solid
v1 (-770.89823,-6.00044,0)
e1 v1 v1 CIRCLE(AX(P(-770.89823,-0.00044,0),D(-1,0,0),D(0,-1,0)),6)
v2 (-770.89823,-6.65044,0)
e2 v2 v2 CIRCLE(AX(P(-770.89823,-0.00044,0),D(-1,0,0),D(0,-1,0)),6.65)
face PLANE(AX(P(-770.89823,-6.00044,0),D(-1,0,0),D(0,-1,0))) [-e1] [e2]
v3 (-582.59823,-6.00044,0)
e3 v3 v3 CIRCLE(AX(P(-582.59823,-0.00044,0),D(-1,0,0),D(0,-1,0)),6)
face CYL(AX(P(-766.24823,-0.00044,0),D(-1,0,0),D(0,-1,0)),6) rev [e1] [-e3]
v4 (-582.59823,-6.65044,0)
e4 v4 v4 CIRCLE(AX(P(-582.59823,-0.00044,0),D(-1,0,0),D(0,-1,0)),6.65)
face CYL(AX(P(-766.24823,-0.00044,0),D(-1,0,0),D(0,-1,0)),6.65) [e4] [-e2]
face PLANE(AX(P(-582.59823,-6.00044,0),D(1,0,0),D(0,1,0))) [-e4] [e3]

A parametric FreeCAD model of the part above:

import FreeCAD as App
import Part
import Sketcher

V = App.Vector
Q = App.Units.Quantity


def add_polygon(sketch, points):
    """Adds a closed chain of lines whose ends are joined by coincident constraints."""
    first, n = sketch.GeometryCount, len(points)
    for a, b in zip(points, points[1:] + points[:1]):
        sketch.addGeometry(Part.LineSegment(App.Vector(*a, 0), App.Vector(*b, 0)), False)
    for i in range(n):
        sketch.addConstraint(Sketcher.Constraint("Coincident", first + i, 2, first + (i + 1) % n, 1))

doc = App.newDocument("Part")
body = doc.addObject("PartDesign::Body", "Body")

# Sketch on XY plane
sketch1 = body.newObject("Sketcher::SketchObject", "Sketch")
sketch1.AttachmentSupport = (doc.getObject("XY_Plane"), [""])
sketch1.MapMode = "FlatFace"
add_polygon(sketch1, [(-770.89823, -6.00044), (-770.89823, -6.65044), (-582.59823, -6.65044), (-582.59823, -6.00044)])  # lines 0-3
sketch1.addGeometry(Part.LineSegment(V(-770.89823, -0.00044, 0), V(-582.59823, -0.00044, 0)), True)  # axis
sketch1.addConstraint(Sketcher.Constraint("Vertical", 0))
sketch1.addConstraint(Sketcher.Constraint("Horizontal", 1))
sketch1.addConstraint(Sketcher.Constraint("Vertical", 2))
sketch1.addConstraint(Sketcher.Constraint("Horizontal", 3))
sketch1.addConstraint(Sketcher.Constraint("Horizontal", 4))
sketch1.addConstraint(Sketcher.Constraint("Vertical", 3, 2, 4, 1))
sketch1.addConstraint(Sketcher.Constraint("Vertical", 2, 2, 4, 2))
sketch1.addConstraint(Sketcher.Constraint("DistanceX", 1, 1, 1, 2, Q("188.3 mm")))
sketch1.addConstraint(Sketcher.Constraint("DistanceY", 3, 2, 4, 1, Q("6 mm")))
sketch1.addConstraint(Sketcher.Constraint("DistanceY", 0, 2, 0, 1, Q("0.65 mm")))
sketch1.addConstraint(Sketcher.Constraint("DistanceX", 0, 2, -1, 1, Q("770.89823 mm")))
sketch1.addConstraint(Sketcher.Constraint("DistanceY", 0, 2, -1, 1, Q("6.65044 mm")))
revolution = body.newObject("PartDesign::Revolution", "Revolution")
revolution.Profile = sketch1
revolution.ReferenceAxis = (sketch1, ["Axis0"])
revolution.Angle = 360

doc.recompute()
